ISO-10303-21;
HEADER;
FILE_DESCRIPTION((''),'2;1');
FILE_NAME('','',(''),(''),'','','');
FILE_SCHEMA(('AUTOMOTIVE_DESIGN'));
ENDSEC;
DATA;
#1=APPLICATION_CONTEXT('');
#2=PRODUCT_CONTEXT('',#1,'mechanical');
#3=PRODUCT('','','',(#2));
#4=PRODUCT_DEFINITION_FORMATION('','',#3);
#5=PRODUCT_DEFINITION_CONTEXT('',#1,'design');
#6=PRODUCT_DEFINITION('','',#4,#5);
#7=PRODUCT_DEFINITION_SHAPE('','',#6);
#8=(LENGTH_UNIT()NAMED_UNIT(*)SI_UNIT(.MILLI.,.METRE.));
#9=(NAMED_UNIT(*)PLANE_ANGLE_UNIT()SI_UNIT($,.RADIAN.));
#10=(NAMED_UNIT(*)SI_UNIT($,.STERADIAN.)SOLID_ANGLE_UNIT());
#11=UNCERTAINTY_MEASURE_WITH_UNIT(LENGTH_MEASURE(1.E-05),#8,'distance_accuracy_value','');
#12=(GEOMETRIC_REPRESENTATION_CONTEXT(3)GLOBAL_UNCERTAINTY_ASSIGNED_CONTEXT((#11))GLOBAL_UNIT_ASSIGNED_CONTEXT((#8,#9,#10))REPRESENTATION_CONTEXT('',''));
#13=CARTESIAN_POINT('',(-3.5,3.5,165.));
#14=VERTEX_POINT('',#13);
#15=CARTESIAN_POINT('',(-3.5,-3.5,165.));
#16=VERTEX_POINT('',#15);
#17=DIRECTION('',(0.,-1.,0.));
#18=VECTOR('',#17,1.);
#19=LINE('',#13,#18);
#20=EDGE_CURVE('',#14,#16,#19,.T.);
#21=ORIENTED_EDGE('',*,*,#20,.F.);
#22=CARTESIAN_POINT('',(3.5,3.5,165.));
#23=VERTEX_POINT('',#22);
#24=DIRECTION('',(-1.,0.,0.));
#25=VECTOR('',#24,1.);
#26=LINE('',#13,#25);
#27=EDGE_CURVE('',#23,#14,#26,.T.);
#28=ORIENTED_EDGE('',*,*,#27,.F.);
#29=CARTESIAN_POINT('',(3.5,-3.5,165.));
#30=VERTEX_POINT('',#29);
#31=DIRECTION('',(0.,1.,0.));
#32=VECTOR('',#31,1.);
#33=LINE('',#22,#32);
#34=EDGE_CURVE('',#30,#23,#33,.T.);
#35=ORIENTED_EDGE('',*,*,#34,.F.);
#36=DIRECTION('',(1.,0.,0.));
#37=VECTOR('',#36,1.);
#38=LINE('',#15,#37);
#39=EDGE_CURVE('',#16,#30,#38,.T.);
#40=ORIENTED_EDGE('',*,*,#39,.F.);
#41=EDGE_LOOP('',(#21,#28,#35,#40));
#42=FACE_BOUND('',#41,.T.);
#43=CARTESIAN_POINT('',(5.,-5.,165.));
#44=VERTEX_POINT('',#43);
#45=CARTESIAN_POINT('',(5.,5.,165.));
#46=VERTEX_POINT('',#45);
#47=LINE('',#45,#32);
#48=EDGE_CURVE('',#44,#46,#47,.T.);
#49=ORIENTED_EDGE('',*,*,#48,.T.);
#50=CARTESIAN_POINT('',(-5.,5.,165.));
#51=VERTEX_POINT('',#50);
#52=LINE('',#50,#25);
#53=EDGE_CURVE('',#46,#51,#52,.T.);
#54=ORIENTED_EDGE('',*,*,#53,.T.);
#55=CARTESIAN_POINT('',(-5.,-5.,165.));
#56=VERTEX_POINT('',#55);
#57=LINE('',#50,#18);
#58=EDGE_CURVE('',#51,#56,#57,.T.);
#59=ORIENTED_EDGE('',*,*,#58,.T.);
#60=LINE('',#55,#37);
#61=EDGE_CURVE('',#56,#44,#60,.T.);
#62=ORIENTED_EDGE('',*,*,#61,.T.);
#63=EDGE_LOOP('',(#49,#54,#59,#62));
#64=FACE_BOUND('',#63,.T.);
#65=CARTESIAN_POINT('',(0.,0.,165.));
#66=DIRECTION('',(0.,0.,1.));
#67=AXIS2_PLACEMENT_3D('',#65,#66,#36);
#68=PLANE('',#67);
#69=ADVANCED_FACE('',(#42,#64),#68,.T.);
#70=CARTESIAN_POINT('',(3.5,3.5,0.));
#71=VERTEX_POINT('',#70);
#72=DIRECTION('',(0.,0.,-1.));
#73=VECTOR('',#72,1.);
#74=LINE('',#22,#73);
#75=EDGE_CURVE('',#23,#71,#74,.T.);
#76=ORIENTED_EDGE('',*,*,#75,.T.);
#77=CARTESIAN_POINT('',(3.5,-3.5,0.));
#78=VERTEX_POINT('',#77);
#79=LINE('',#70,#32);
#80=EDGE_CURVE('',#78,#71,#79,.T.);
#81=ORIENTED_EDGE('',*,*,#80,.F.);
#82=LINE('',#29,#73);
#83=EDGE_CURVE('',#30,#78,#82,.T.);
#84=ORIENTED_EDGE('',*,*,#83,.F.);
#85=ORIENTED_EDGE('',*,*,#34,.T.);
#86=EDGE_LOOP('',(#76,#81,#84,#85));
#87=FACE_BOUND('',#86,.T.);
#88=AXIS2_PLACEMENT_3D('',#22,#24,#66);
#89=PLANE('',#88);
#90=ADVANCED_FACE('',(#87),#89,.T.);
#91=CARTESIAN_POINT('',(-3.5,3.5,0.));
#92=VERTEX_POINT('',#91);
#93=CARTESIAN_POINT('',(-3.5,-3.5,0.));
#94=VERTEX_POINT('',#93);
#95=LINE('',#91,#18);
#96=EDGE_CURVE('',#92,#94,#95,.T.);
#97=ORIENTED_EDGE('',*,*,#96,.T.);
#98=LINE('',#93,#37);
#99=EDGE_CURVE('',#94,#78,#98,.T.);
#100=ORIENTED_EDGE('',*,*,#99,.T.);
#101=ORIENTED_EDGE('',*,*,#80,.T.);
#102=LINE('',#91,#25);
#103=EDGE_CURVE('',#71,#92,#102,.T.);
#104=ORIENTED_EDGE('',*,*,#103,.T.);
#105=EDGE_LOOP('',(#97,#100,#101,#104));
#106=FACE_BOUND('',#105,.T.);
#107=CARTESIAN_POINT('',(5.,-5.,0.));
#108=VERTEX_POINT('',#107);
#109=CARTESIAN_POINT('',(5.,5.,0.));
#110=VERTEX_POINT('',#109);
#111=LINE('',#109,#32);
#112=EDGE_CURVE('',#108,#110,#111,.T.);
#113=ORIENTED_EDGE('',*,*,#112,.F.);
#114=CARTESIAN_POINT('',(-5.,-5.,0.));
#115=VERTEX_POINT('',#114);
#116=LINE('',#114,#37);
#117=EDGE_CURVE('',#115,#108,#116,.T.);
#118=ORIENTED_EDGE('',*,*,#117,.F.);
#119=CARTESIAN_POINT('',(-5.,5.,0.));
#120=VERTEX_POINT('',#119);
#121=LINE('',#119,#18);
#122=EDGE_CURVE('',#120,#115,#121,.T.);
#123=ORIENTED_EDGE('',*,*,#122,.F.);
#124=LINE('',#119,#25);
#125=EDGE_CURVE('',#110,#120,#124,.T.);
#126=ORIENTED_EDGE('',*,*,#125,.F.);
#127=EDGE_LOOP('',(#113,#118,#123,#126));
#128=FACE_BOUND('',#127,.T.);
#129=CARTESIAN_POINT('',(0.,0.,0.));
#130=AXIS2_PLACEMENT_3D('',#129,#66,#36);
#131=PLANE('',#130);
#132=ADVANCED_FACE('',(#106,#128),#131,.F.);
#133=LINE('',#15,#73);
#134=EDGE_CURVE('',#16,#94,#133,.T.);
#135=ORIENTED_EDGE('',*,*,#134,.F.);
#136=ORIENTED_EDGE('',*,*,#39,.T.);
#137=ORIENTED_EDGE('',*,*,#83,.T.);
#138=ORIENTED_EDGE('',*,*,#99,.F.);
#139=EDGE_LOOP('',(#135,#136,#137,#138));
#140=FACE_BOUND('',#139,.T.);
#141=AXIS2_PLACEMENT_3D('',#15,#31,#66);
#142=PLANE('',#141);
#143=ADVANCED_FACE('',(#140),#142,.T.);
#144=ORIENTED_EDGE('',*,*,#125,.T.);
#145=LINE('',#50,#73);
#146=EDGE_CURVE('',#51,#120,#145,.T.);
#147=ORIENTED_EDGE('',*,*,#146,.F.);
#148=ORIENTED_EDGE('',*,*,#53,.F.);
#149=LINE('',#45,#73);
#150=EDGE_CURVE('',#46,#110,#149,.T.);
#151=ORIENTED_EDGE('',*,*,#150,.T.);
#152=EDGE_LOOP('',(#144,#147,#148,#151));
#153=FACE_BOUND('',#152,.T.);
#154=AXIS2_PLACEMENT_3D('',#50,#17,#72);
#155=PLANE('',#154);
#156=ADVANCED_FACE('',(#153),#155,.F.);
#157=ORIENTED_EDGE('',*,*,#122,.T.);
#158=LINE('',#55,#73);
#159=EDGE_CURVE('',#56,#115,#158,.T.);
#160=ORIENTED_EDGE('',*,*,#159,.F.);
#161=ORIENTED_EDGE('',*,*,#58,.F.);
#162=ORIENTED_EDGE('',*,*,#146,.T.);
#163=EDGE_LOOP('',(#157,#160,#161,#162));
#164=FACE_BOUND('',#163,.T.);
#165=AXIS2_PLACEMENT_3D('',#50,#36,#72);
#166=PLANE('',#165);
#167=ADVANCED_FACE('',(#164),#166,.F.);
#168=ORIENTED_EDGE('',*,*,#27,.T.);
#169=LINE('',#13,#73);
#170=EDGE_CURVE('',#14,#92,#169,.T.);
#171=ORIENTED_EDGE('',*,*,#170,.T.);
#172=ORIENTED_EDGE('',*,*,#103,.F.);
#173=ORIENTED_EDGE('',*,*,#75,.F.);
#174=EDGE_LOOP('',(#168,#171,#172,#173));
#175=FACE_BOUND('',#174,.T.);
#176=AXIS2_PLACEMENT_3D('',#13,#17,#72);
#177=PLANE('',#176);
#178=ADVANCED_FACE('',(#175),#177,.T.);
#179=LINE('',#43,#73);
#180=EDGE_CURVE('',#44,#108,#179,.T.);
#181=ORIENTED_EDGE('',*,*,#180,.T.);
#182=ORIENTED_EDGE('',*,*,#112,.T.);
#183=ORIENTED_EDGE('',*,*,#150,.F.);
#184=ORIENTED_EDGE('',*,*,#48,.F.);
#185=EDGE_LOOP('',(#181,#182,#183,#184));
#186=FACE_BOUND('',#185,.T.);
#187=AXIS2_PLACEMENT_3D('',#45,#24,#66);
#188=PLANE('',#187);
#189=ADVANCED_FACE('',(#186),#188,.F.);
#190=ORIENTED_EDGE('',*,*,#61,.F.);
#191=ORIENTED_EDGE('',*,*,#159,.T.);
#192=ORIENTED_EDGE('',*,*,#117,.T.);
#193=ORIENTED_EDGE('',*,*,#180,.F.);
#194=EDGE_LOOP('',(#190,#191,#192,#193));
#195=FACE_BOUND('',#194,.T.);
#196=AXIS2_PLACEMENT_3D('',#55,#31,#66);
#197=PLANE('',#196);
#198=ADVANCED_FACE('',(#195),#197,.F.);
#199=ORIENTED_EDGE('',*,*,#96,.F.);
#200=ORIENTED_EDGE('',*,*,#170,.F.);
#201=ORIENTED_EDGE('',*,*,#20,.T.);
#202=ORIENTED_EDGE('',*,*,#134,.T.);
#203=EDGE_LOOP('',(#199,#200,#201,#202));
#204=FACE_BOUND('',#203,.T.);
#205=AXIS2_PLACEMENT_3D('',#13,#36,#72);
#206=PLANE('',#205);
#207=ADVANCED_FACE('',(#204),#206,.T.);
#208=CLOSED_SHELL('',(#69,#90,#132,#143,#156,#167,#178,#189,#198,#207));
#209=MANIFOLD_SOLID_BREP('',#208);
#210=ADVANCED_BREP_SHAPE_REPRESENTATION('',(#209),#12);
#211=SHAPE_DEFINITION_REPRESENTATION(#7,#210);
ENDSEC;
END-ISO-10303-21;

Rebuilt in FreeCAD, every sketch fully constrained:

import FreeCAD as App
import Part
import Sketcher
Q = App.Units.Quantity

doc = App.newDocument("Part")
body = doc.addObject("PartDesign::Body", "Body")

# Sketch on XY plane
sketch1 = doc.addObject("Sketcher::SketchObject", "Sketch")
body.addObject(sketch1)
sketch1.AttachmentSupport = (doc.XY_Plane, [""])
sketch1.MapMode = "FlatFace"
sketch1.addGeometry([
    Part.LineSegment(App.Vector(-5, 5, 0), App.Vector(-5, -5, 0)),  # 0
    Part.LineSegment(App.Vector(-5, -5, 0), App.Vector(5, -5, 0)),  # 1
    Part.LineSegment(App.Vector(5, -5, 0), App.Vector(5, 5, 0)),  # 2
    Part.LineSegment(App.Vector(5, 5, 0), App.Vector(-5, 5, 0)),  # 3
    Part.LineSegment(App.Vector(4, -4, 0), App.Vector(-4, -4, 0)),  # 4
    Part.LineSegment(App.Vector(-4, -4, 0), App.Vector(-4, 4, 0)),  # 5
    Part.LineSegment(App.Vector(-4, 4, 0), App.Vector(4, 4, 0)),  # 6
    Part.LineSegment(App.Vector(4, 4, 0), App.Vector(4, -4, 0)),  # 7
], False)
sketch1.addConstraint([
    Sketcher.Constraint("Coincident", 0, 2, 1, 1),
    Sketcher.Constraint("Coincident", 1, 2, 2, 1),
    Sketcher.Constraint("Coincident", 2, 2, 3, 1),
    Sketcher.Constraint("Coincident", 3, 2, 0, 1),
    Sketcher.Constraint("Coincident", 4, 2, 5, 1),
    Sketcher.Constraint("Coincident", 5, 2, 6, 1),
    Sketcher.Constraint("Coincident", 6, 2, 7, 1),
    Sketcher.Constraint("Coincident", 7, 2, 4, 1),
    Sketcher.Constraint("Vertical", 0),
    Sketcher.Constraint("Horizontal", 1),
    Sketcher.Constraint("Vertical", 2),
    Sketcher.Constraint("Horizontal", 3),
    Sketcher.Constraint("Horizontal", 4),
    Sketcher.Constraint("Vertical", 5),
    Sketcher.Constraint("Horizontal", 6),
    Sketcher.Constraint("Vertical", 7),
    Sketcher.Constraint("Symmetric", 0, 2, 2, 2, -1, 1),
    Sketcher.Constraint("Symmetric", 4, 2, 6, 2, -1, 1),
    Sketcher.Constraint("Equal", 3, 0),
    Sketcher.Constraint("Equal", 6, 5),
    Sketcher.Constraint("DistanceX", 1, 1, 1, 2, Q("10 mm")),
    Sketcher.Constraint("DistanceX", 4, 2, 4, 1, Q("7 mm")),
])
pad1 = doc.addObject("PartDesign::Pad", "Pad")
body.addObject(pad1)
pad1.Profile = sketch1
pad1.Length = 165

doc.recompute()
